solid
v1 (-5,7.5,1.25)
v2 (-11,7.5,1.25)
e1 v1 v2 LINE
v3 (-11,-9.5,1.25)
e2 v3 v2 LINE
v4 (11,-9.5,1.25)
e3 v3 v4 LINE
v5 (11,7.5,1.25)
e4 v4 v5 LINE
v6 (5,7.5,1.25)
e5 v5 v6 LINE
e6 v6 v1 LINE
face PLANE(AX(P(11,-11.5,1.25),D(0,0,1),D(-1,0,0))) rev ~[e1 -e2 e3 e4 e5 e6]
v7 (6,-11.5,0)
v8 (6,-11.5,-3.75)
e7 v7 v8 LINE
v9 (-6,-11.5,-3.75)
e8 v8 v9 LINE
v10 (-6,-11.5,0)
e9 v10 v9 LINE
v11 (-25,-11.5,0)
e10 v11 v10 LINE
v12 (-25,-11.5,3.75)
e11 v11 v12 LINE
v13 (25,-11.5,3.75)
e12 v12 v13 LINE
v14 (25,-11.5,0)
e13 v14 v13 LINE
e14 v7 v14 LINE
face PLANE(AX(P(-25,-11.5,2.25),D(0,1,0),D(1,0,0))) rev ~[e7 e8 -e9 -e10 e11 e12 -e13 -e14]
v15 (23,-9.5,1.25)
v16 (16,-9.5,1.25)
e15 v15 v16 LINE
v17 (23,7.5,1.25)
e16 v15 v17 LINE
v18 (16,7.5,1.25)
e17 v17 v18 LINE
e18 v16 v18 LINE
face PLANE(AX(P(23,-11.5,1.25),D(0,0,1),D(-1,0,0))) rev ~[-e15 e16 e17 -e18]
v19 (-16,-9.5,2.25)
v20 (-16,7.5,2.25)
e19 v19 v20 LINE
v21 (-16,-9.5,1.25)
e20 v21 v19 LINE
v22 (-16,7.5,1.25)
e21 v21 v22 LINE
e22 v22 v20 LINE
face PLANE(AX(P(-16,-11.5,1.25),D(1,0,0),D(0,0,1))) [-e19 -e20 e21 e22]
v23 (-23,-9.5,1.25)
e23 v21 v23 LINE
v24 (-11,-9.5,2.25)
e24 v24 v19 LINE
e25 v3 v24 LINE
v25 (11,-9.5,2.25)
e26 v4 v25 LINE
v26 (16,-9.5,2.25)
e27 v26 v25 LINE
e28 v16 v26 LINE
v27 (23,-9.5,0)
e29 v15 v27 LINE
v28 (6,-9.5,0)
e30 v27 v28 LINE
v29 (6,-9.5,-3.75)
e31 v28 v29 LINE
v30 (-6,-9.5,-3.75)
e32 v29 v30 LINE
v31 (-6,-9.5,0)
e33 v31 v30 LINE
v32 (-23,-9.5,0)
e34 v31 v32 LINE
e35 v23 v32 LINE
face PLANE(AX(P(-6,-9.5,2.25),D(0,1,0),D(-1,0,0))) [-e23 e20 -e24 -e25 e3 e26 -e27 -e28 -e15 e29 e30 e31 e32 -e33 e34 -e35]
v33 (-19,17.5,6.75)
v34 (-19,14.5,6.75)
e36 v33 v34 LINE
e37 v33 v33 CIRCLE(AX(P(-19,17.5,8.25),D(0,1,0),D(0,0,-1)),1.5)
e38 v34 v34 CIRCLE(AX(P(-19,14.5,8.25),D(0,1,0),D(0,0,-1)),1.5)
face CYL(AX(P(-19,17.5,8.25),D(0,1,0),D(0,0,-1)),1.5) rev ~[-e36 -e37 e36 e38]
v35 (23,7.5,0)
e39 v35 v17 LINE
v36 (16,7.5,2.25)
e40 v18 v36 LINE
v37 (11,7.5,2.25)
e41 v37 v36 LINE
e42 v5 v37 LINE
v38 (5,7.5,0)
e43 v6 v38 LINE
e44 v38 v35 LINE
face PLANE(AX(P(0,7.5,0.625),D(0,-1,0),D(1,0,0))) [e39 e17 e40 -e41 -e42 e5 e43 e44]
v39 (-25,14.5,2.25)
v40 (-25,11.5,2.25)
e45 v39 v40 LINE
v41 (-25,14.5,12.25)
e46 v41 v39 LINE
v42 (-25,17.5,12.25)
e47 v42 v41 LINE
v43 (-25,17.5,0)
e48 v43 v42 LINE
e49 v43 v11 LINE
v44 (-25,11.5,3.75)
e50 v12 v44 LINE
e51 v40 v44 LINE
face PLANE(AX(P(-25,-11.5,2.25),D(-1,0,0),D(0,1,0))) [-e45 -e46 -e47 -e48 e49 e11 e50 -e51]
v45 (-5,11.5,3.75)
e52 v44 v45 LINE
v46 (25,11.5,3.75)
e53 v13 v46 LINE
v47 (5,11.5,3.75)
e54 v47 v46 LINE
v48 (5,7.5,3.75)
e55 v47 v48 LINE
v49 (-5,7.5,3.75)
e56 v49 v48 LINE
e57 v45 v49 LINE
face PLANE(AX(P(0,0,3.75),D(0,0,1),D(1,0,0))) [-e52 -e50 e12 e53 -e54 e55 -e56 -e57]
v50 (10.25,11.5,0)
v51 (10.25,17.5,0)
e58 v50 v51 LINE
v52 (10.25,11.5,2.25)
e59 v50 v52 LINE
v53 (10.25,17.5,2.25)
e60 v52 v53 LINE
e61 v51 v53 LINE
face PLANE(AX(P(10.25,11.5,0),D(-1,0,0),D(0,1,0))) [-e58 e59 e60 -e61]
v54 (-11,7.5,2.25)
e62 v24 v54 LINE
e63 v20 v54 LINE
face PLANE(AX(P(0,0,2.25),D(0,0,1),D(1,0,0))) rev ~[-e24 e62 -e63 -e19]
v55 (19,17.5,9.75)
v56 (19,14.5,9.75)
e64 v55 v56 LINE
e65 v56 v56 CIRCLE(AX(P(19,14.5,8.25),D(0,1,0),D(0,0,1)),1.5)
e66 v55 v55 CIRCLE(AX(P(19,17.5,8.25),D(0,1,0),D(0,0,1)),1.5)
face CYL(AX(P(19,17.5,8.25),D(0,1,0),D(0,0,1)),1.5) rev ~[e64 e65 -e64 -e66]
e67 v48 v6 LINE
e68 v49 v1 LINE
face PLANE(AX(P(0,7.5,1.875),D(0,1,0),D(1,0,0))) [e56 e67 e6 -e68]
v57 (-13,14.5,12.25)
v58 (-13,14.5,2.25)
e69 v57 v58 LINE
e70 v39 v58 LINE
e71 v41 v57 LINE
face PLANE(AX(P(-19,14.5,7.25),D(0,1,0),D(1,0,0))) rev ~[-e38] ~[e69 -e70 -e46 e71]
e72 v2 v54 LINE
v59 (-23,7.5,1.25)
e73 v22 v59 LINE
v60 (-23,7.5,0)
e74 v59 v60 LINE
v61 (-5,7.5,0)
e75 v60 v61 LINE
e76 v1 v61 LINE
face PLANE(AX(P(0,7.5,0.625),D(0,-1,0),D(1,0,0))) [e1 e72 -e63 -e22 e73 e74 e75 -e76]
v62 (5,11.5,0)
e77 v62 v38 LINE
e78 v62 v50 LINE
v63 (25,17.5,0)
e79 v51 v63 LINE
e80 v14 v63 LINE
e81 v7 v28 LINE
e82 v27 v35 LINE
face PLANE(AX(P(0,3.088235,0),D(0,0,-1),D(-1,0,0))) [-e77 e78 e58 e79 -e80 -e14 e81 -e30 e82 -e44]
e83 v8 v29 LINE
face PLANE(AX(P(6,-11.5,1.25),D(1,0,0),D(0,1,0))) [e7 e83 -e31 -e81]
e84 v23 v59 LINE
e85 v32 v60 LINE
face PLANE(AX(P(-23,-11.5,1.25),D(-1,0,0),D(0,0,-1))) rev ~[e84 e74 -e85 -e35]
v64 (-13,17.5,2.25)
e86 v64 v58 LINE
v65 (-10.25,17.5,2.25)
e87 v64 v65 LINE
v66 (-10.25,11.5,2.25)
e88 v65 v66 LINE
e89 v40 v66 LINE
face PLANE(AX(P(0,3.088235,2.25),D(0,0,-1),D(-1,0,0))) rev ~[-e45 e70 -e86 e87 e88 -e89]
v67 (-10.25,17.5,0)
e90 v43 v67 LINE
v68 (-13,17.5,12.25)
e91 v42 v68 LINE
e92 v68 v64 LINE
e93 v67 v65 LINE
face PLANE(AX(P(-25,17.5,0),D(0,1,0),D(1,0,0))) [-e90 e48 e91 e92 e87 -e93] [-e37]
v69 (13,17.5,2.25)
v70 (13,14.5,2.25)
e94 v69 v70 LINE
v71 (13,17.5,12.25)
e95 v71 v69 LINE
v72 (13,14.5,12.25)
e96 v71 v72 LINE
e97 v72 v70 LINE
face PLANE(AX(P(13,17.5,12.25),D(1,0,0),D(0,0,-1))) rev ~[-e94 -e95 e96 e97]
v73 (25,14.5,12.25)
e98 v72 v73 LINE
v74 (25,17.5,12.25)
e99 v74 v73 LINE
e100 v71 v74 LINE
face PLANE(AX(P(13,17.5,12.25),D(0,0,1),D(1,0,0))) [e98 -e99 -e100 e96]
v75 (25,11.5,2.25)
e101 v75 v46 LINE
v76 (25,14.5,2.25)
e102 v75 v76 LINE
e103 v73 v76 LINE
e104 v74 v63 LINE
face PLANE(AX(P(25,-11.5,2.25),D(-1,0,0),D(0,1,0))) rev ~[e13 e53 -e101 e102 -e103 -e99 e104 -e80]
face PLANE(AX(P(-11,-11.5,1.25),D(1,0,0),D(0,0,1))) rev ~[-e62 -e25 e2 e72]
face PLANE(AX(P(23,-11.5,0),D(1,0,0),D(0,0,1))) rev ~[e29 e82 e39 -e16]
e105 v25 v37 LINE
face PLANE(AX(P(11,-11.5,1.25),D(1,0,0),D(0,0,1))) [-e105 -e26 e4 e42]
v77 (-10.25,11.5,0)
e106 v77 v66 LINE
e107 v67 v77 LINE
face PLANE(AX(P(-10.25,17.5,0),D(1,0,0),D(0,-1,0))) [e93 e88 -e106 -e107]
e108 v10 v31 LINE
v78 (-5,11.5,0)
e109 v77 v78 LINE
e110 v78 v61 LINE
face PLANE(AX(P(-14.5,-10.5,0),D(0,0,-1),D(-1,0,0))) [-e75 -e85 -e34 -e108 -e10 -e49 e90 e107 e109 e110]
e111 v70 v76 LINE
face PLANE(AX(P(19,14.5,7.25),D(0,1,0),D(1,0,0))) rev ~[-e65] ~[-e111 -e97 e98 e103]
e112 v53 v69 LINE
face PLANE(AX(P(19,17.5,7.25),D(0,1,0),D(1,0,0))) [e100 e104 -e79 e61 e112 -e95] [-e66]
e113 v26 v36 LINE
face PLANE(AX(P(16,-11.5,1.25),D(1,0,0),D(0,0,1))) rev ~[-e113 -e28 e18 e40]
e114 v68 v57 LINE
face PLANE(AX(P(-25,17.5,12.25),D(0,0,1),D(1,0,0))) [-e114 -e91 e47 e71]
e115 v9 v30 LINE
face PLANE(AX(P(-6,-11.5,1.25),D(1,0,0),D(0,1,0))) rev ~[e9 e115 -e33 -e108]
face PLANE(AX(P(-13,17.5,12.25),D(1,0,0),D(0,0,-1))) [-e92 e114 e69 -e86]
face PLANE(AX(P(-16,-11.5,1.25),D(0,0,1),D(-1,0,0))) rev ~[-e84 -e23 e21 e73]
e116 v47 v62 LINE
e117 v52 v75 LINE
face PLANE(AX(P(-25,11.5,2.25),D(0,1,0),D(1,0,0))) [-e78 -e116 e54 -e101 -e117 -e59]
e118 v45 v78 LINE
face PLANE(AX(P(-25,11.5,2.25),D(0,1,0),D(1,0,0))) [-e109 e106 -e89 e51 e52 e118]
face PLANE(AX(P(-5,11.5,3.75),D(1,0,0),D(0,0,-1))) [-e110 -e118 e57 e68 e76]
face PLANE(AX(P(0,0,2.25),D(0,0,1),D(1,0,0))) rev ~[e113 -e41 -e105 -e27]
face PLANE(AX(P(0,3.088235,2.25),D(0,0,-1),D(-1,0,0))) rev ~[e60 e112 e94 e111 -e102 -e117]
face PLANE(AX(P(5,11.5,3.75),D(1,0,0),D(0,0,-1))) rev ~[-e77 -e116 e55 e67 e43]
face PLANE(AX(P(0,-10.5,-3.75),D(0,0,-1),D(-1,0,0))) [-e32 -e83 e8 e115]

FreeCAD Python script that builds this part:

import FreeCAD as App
import Part
import Sketcher

V = App.Vector
Q = App.Units.Quantity

doc = App.newDocument("Part")
params = doc.addObject("Spreadsheet::Sheet", "Params")
for row, (alias, value) in enumerate([
    ("sketch1_width", "50 mm"),
    ("sketch1_height", "29 mm"),
    ("sketch1_height2", "6 mm"),
    ("sketch1_width2", "20.5 mm"),
    ("pad1_length", "2.25 mm"),
    ("sketch2_diameter", "3 mm"),
    ("sketch2_width", "12 mm"),
    ("sketch2_height", "10 mm"),
    ("pad2_length", "3 mm"),
    ("sketch3_width", "46 mm"),
    ("sketch3_width2", "7 mm"),
    ("sketch3_width3", "5 mm"),
    ("sketch3_height", "1 mm"),
    ("sketch3_height2", "1.25 mm"),
    ("pocket1_length", "19 mm"),
    ("sketch4_width", "50 mm"),
    ("sketch4_height", "23 mm"),
    ("pad3_length", "1.5 mm"),
    ("sketch5_width", "10 mm"),
    ("sketch5_height", "3.75 mm"),
    ("pocket2_length", "4 mm"),
    ("sketch6_width", "12 mm"),
    ("sketch6_height", "2 mm"),
    ("pad4_length", "5 mm"),
    ("sketch7_width", "17 mm"),
    ("sketch7_height", "2 mm"),
    ("pad5_length", "2.25 mm"),
], start=1):
    params.set(f"A{row}", alias)
    params.set(f"B{row}", "=" + value)
    params.setAlias(f"B{row}", alias)

body = doc.addObject("PartDesign::Body", "Body")

# Sketch on XY plane
sketch1 = body.newObject("Sketcher::SketchObject", "Sketch")
sketch1.AttachmentSupport = (doc.getObject("XY_Plane"), [""])
sketch1.MapMode = "FlatFace"
sketch1.addGeometry([
    Part.LineSegment(V(-25, -12, 0), V(25, -12, 0)),  # 0
    Part.LineSegment(V(25, -12, 0), V(25, 18, 0)),  # 1
    Part.LineSegment(V(25, 18, 0), V(10, 18, 0)),  # 2
    Part.LineSegment(V(10, 18, 0), V(10, 12, 0)),  # 3
    Part.LineSegment(V(10, 12, 0), V(-10, 12, 0)),  # 4
    Part.LineSegment(V(-10, 12, 0), V(-10, 18, 0)),  # 5
    Part.LineSegment(V(-10, 18, 0), V(-25, 18, 0)),  # 6
    Part.LineSegment(V(-25, 18, 0), V(-25, -12, 0)),  # 7
], False)
sketch1.addConstraint([
    Sketcher.Constraint("Coincident", 0, 2, 1, 1),
    Sketcher.Constraint("Coincident", 1, 2, 2, 1),
    Sketcher.Constraint("Coincident", 2, 2, 3, 1),
    Sketcher.Constraint("Coincident", 3, 2, 4, 1),
    Sketcher.Constraint("Coincident", 4, 2, 5, 1),
    Sketcher.Constraint("Coincident", 5, 2, 6, 1),
    Sketcher.Constraint("Coincident", 6, 2, 7, 1),
    Sketcher.Constraint("Coincident", 7, 2, 0, 1),
    Sketcher.Constraint("Horizontal", 0),
    Sketcher.Constraint("Vertical", 1),
    Sketcher.Constraint("Horizontal", 2),
    Sketcher.Constraint("Vertical", 3),
    Sketcher.Constraint("Horizontal", 4),
    Sketcher.Constraint("Vertical", 5),
    Sketcher.Constraint("Horizontal", 6),
    Sketcher.Constraint("Vertical", 7),
    Sketcher.Constraint("Symmetric", 2, 2, 5, 2, -2),
    Sketcher.Constraint("Equal", 2, 6),
    Sketcher.Constraint("DistanceX", 0, 1, 0, 2, Q("50 mm")),
    Sketcher.Constraint("DistanceY", 1, 1, 1, 2, Q("29 mm")),
    Sketcher.Constraint("DistanceY", 3, 2, 3, 1, Q("6 mm")),
    Sketcher.Constraint("DistanceX", 4, 2, 4, 1, Q("20.5 mm")),
    Sketcher.Constraint("DistanceY", 0, 2, -1, 1, Q("11.5 mm")),
])
sketch1.setExpression("Constraints[18]", "Params.sketch1_width")
sketch1.setExpression("Constraints[19]", "Params.sketch1_height")
sketch1.setExpression("Constraints[20]", "Params.sketch1_height2")
sketch1.setExpression("Constraints[21]", "Params.sketch1_width2")
pad1 = body.newObject("PartDesign::Pad", "Pad")
pad1.Profile = sketch1
pad1.setExpression("Length", "Params.pad1_length")

# Sketch on XZ plane
sketch2 = body.newObject("Sketcher::SketchObject", "Sketch001")
sketch2.AttachmentSupport = (doc.getObject("XZ_Plane"), [""])
sketch2.MapMode = "FlatFace"
sketch2.AttachmentOffset = App.Placement(V(0, 0, -17.5), App.Rotation())
sketch2.addGeometry([
    Part.LineSegment(V(13, 2.2, 0), V(13, 12.2, 0)),  # 0
    Part.LineSegment(V(13, 12.2, 0), V(25, 12.2, 0)),  # 1
    Part.LineSegment(V(25, 12.2, 0), V(25, 2.2, 0)),  # 2
    Part.LineSegment(V(25, 2.2, 0), V(13, 2.2, 0)),  # 3
    Part.Circle(V(19, 8.2, 0), V(0, 0, 1), 1.5),  # 4
    Part.LineSegment(V(-25, 2.2, 0), V(-25, 12.2, 0)),  # 5
    Part.LineSegment(V(-25, 12.2, 0), V(-13, 12.2, 0)),  # 6
    Part.LineSegment(V(-13, 12.2, 0), V(-13, 2.2, 0)),  # 7
    Part.LineSegment(V(-13, 2.2, 0), V(-25, 2.2, 0)),  # 8
    Part.Circle(V(-19, 8.2, 0), V(0, 0, 1), 1.5),  # 9
], False)
sketch2.addConstraint([
    Sketcher.Constraint("Coincident", 0, 2, 1, 1),
    Sketcher.Constraint("Coincident", 1, 2, 2, 1),
    Sketcher.Constraint("Coincident", 2, 2, 3, 1),
    Sketcher.Constraint("Coincident", 3, 2, 0, 1),
    Sketcher.Constraint("Coincident", 5, 2, 6, 1),
    Sketcher.Constraint("Coincident", 6, 2, 7, 1),
    Sketcher.Constraint("Coincident", 7, 2, 8, 1),
    Sketcher.Constraint("Coincident", 8, 2, 5, 1),
    Sketcher.Constraint("Vertical", 0),
    Sketcher.Constraint("Horizontal", 1),
    Sketcher.Constraint("Vertical", 2),
    Sketcher.Constraint("Horizontal", 3),
    Sketcher.Constraint("Vertical", 5),
    Sketcher.Constraint("Horizontal", 6),
    Sketcher.Constraint("Vertical", 7),
    Sketcher.Constraint("Horizontal", 8),
    Sketcher.Constraint("Equal", 4, 9),
    Sketcher.Constraint("Symmetric", 4, 3, 9, 3, -2),
    Sketcher.Constraint("Symmetric", 1, 2, 5, 2, -2),
    Sketcher.Constraint("Symmetric", 3, 2, 7, 2, -2),
    Sketcher.Constraint("Diameter", 4, Q("3 mm")),
    Sketcher.Constraint("DistanceX", 1, 1, 1, 2, Q("12 mm")),
    Sketcher.Constraint("DistanceY", 0, 1, 0, 2, Q("10 mm")),
    Sketcher.Constraint("DistanceX", -1, 1, 4, 3, Q("19 mm")),
    Sketcher.Constraint("DistanceX", -1, 1, 0, 2, Q("13 mm")),
    Sketcher.Constraint("DistanceY", 4, 3, 0, 2, Q("4 mm")),
    Sketcher.Constraint("DistanceY", -1, 1, 4, 3, Q("8.25 mm")),
])
sketch2.setExpression("Constraints[20]", "Params.sketch2_diameter")
sketch2.setExpression("Constraints[21]", "Params.sketch2_width")
sketch2.setExpression("Constraints[22]", "Params.sketch2_height")
pad2 = body.newObject("PartDesign::Pad", "Pad001")
pad2.Profile = sketch2
pad2.setExpression("Length", "Params.pad2_length")

# Sketch on XZ plane
sketch3 = body.newObject("Sketcher::SketchObject", "Sketch002")
sketch3.AttachmentSupport = (doc.getObject("XZ_Plane"), [""])
sketch3.MapMode = "FlatFace"
sketch3.AttachmentOffset = App.Placement(V(0, 0, 11.5), App.Rotation())
sketch3.addGeometry([
    Part.LineSegment(V(-23, 1.2, 0), V(-23, 0, 0)),  # 0
    Part.LineSegment(V(-23, 0, 0), V(23, 0, 0)),  # 1
    Part.LineSegment(V(23, 0, 0), V(23, 1.2, 0)),  # 2
    Part.LineSegment(V(23, 1.2, 0), V(16, 1.2, 0)),  # 3
    Part.LineSegment(V(16, 1.2, 0), V(16, 2.2, 0)),  # 4
    Part.LineSegment(V(16, 2.2, 0), V(11, 2.2, 0)),  # 5
    Part.LineSegment(V(11, 2.2, 0), V(11, 1.2, 0)),  # 6
    Part.LineSegment(V(11, 1.2, 0), V(-11, 1.2, 0)),  # 7
    Part.LineSegment(V(-11, 1.2, 0), V(-11, 2.2, 0)),  # 8
    Part.LineSegment(V(-11, 2.2, 0), V(-16, 2.2, 0)),  # 9
    Part.LineSegment(V(-16, 2.2, 0), V(-16, 1.2, 0)),  # 10
    Part.LineSegment(V(-16, 1.2, 0), V(-23, 1.2, 0)),  # 11
], False)
sketch3.addConstraint([
    Sketcher.Constraint("Coincident", 0, 2, 1, 1),
    Sketcher.Constraint("Coincident", 1, 2, 2, 1),
    Sketcher.Constraint("Coincident", 2, 2, 3, 1),
    Sketcher.Constraint("Coincident", 3, 2, 4, 1),
    Sketcher.Constraint("Coincident", 4, 2, 5, 1),
    Sketcher.Constraint("Coincident", 5, 2, 6, 1),
    Sketcher.Constraint("Coincident", 6, 2, 7, 1),
    Sketcher.Constraint("Coincident", 7, 2, 8, 1),
    Sketcher.Constraint("Coincident", 8, 2, 9, 1),
    Sketcher.Constraint("Coincident", 9, 2, 10, 1),
    Sketcher.Constraint("Coincident", 10, 2, 11, 1),
    Sketcher.Constraint("Coincident", 11, 2, 0, 1),
    Sketcher.Constraint("Vertical", 0),
    Sketcher.Constraint("Horizontal", 1),
    Sketcher.Constraint("Vertical", 2),
    Sketcher.Constraint("Horizontal", 3),
    Sketcher.Constraint("Vertical", 4),
    Sketcher.Constraint("Horizontal", 5),
    Sketcher.Constraint("Vertical", 6),
    Sketcher.Constraint("Horizontal", 7),
    Sketcher.Constraint("Vertical", 8),
    Sketcher.Constraint("Horizontal", 9),
    Sketcher.Constraint("Vertical", 10),
    Sketcher.Constraint("Horizontal", 11),
    Sketcher.Constraint("Symmetric", 0, 2, 1, 2, -1, 1),
    Sketcher.Constraint("Symmetric", 5, 2, 8, 2, -2),
    Sketcher.Constraint("Symmetric", 3, 2, 10, 2, -2),
    Sketcher.Constraint("Horizontal", 3, 2, 6, 2),
    Sketcher.Constraint("DistanceX", 1, 1, 1, 2, Q("46 mm")),
    Sketcher.Constraint("DistanceX", 3, 2, 3, 1, Q("7 mm")),
    Sketcher.Constraint("DistanceX", 5, 2, 5, 1, Q("5 mm")),
    Sketcher.Constraint("DistanceY", 4, 1, 4, 2, Q("1 mm")),
    Sketcher.Constraint("DistanceY", 0, 2, 0, 1, Q("1.25 mm")),
])
sketch3.setExpression("Constraints[28]", "Params.sketch3_width")
sketch3.setExpression("Constraints[29]", "Params.sketch3_width2")
sketch3.setExpression("Constraints[30]", "Params.sketch3_width3")
sketch3.setExpression("Constraints[31]", "Params.sketch3_height")
sketch3.setExpression("Constraints[32]", "Params.sketch3_height2")
pocket1 = body.newObject("PartDesign::Pocket", "Pocket")
pocket1.Profile = sketch3
pocket1.setExpression("Length", "Params.pocket1_length")

# Sketch on XY plane
sketch4 = body.newObject("Sketcher::SketchObject", "Sketch003")
sketch4.AttachmentSupport = (doc.getObject("XY_Plane"), [""])
sketch4.MapMode = "FlatFace"
sketch4.AttachmentOffset = App.Placement(V(0, 0, 2.25), App.Rotation())
sketch4.addGeometry([
    Part.LineSegment(V(-25, 12, 0), V(-25, -12, 0)),
    Part.LineSegment(V(-25, -12, 0), V(25, -12, 0)),
    Part.LineSegment(V(25, -12, 0), V(25, 12, 0)),
    Part.LineSegment(V(25, 12, 0), V(-25, 12, 0)),
], False)
sketch4.addConstraint([
    Sketcher.Constraint("Coincident", 0, 2, 1, 1),
    Sketcher.Constraint("Coincident", 1, 2, 2, 1),
    Sketcher.Constraint("Coincident", 2, 2, 3, 1),
    Sketcher.Constraint("Coincident", 3, 2, 0, 1),
    Sketcher.Constraint("Vertical", 0),
    Sketcher.Constraint("Horizontal", 1),
    Sketcher.Constraint("Vertical", 2),
    Sketcher.Constraint("Horizontal", 3),
    Sketcher.Constraint("Symmetric", 0, 2, 2, 2, -1, 1),
    Sketcher.Constraint("DistanceX", 1, 1, 1, 2, Q("50 mm")),
    Sketcher.Constraint("DistanceY", 0, 2, 0, 1, Q("23 mm")),
])
sketch4.setExpression("Constraints[9]", "Params.sketch4_width")
sketch4.setExpression("Constraints[10]", "Params.sketch4_height")
pad3 = body.newObject("PartDesign::Pad", "Pad002")
pad3.Profile = sketch4
pad3.setExpression("Length", "Params.pad3_length")

# Sketch on XZ plane
sketch5 = body.newObject("Sketcher::SketchObject", "Sketch004")
sketch5.AttachmentSupport = (doc.getObject("XZ_Plane"), [""])
sketch5.MapMode = "FlatFace"
sketch5.AttachmentOffset = App.Placement(V(0, 0, -11.5), App.Rotation())
sketch5.addGeometry([
    Part.LineSegment(V(-5, 0, 0), V(-5, 3.8, 0)),
    Part.LineSegment(V(-5, 3.8, 0), V(5, 3.8, 0)),
    Part.LineSegment(V(5, 3.8, 0), V(5, 0, 0)),
    Part.LineSegment(V(5, 0, 0), V(-5, 0, 0)),
], False)
sketch5.addConstraint([
    Sketcher.Constraint("Coincident", 0, 2, 1, 1),
    Sketcher.Constraint("Coincident", 1, 2, 2, 1),
    Sketcher.Constraint("Coincident", 2, 2, 3, 1),
    Sketcher.Constraint("Coincident", 3, 2, 0, 1),
    Sketcher.Constraint("Vertical", 0),
    Sketcher.Constraint("Horizontal", 1),
    Sketcher.Constraint("Vertical", 2),
    Sketcher.Constraint("Horizontal", 3),
    Sketcher.Constraint("Symmetric", 2, 2, 3, 2, -1, 1),
    Sketcher.Constraint("DistanceX", 1, 1, 1, 2, Q("10 mm")),
    Sketcher.Constraint("DistanceY", 0, 1, 0, 2, Q("3.75 mm")),
])
sketch5.setExpression("Constraints[9]", "Params.sketch5_width")
sketch5.setExpression("Constraints[10]", "Params.sketch5_height")
pocket2 = body.newObject("PartDesign::Pocket", "Pocket001")
pocket2.Profile = sketch5
pocket2.setExpression("Length", "Params.pocket2_length")
pocket2.Reversed = True

# Sketch on XY plane
sketch6 = body.newObject("Sketcher::SketchObject", "Sketch005")
sketch6.AttachmentSupport = (doc.getObject("XY_Plane"), [""])
sketch6.MapMode = "FlatFace"
sketch6.AttachmentOffset = App.Placement(V(0, 0, 1.25), App.Rotation())
sketch6.addGeometry([
    Part.LineSegment(V(6, -9.5, 0), V(6, -11.5, 0)),
    Part.LineSegment(V(6, -11.5, 0), V(-6, -11.5, 0)),
    Part.LineSegment(V(-6, -11.5, 0), V(-6, -9.5, 0)),
    Part.LineSegment(V(-6, -9.5, 0), V(6, -9.5, 0)),
], False)
sketch6.addConstraint([
    Sketcher.Constraint("Coincident", 0, 2, 1, 1),
    Sketcher.Constraint("Coincident", 1, 2, 2, 1),
    Sketcher.Constraint("Coincident", 2, 2, 3, 1),
    Sketcher.Constraint("Coincident", 3, 2, 0, 1),
    Sketcher.Constraint("Vertical", 0),
    Sketcher.Constraint("Horizontal", 1),
    Sketcher.Constraint("Vertical", 2),
    Sketcher.Constraint("Horizontal", 3),
    Sketcher.Constraint("DistanceX", 1, 2, 1, 1, Q("12 mm")),
    Sketcher.Constraint("DistanceY", 0, 2, 0, 1, Q("2 mm")),
    Sketcher.Constraint("DistanceX", -1, 1, 0, 2, Q("6 mm")),
    Sketcher.Constraint("DistanceY", 0, 2, -1, 1, Q("11.5 mm")),
])
sketch6.setExpression("Constraints[8]", "Params.sketch6_width")
sketch6.setExpression("Constraints[9]", "Params.sketch6_height")
pad4 = body.newObject("PartDesign::Pad", "Pad003")
pad4.Profile = sketch6
pad4.setExpression("Length", "Params.pad4_length")
pad4.Reversed = True

# Sketch on XY plane
sketch7 = body.newObject("Sketcher::SketchObject", "Sketch006")
sketch7.AttachmentSupport = (doc.getObject("XY_Plane"), [""])
sketch7.MapMode = "FlatFace"
sketch7.AttachmentOffset = App.Placement(V(0, 0, 2.25), App.Rotation())
sketch7.addGeometry([
    Part.LineSegment(V(-6, -9.5, 0), V(-6, -11.5, 0)),  # 0
    Part.LineSegment(V(-6, -11.5, 0), V(-23, -11.5, 0)),  # 1
    Part.LineSegment(V(-23, -11.5, 0), V(-23, -9.5, 0)),  # 2
    Part.LineSegment(V(-23, -9.5, 0), V(-6, -9.5, 0)),  # 3
    Part.LineSegment(V(23, -9.5, 0), V(23, -11.5, 0)),  # 4
    Part.LineSegment(V(23, -11.5, 0), V(6, -11.5, 0)),  # 5
    Part.LineSegment(V(6, -11.5, 0), V(6, -9.5, 0)),  # 6
    Part.LineSegment(V(6, -9.5, 0), V(23, -9.5, 0)),  # 7
], False)
sketch7.addConstraint([
    Sketcher.Constraint("Coincident", 0, 2, 1, 1),
    Sketcher.Constraint("Coincident", 1, 2, 2, 1),
    Sketcher.Constraint("Coincident", 2, 2, 3, 1),
    Sketcher.Constraint("Coincident", 3, 2, 0, 1),
    Sketcher.Constraint("Coincident", 4, 2, 5, 1),
    Sketcher.Constraint("Coincident", 5, 2, 6, 1),
    Sketcher.Constraint("Coincident", 6, 2, 7, 1),
    Sketcher.Constraint("Coincident", 7, 2, 4, 1),
    Sketcher.Constraint("Vertical", 0),
    Sketcher.Constraint("Horizontal", 1),
    Sketcher.Constraint("Vertical", 2),
    Sketcher.Constraint("Horizontal", 3),
    Sketcher.Constraint("Vertical", 4),
    Sketcher.Constraint("Horizontal", 5),
    Sketcher.Constraint("Vertical", 6),
    Sketcher.Constraint("Horizontal", 7),
    Sketcher.Constraint("Symmetric", 1, 2, 4, 2, -2),
    Sketcher.Constraint("Symmetric", 3, 2, 6, 2, -2),
    Sketcher.Constraint("DistanceX", 1, 2, 1, 1, Q("17 mm")),
    Sketcher.Constraint("DistanceY", 0, 2, 0, 1, Q("2 mm")),
    Sketcher.Constraint("DistanceX", 0, 2, -1, 1, Q("6 mm")),
    Sketcher.Constraint("DistanceY", 0, 2, -1, 1, Q("11.5 mm")),
])
sketch7.setExpression("Constraints[18]", "Params.sketch7_width")
sketch7.setExpression("Constraints[19]", "Params.sketch7_height")
pad5 = body.newObject("PartDesign::Pad", "Pad004")
pad5.Profile = sketch7
pad5.setExpression("Length", "Params.pad5_length")
pad5.Reversed = True

doc.recompute()
